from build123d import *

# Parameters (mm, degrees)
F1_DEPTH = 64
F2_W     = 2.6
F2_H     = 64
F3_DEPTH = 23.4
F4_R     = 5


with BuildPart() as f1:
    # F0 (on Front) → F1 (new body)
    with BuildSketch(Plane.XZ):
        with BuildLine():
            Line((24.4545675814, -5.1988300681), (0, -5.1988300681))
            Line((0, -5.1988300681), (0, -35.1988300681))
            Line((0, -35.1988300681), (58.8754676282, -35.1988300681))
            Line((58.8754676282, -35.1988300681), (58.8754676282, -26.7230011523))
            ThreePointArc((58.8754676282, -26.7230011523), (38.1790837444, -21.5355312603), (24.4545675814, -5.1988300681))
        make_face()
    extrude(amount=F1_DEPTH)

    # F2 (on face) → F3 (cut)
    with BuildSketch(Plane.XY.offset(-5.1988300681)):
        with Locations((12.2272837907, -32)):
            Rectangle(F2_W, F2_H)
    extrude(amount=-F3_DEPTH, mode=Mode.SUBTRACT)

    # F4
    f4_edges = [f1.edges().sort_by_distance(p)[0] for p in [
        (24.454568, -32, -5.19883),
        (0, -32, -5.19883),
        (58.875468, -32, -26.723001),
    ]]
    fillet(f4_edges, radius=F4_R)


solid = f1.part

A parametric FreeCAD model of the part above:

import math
import FreeCAD as App
import Part
import Sketcher

V = App.Vector


def edges_at(feature, points):
    """Names of the edges that pass closest to the given points."""
    edges = feature.Shape.Edges
    near = lambda p: min(range(len(edges)), key=lambda i: edges[i].distToShape(Part.Vertex(*p))[0])
    return sorted({f"Edge{near(p) + 1}" for p in points})

doc = App.newDocument("Part")
body = doc.addObject("PartDesign::Body", "Body")

sketch1 = body.newObject("Sketcher::SketchObject", "Sketch")
sketch1.AttachmentSupport = (doc.getObject("XZ_Plane"), [""])
sketch1.MapMode = "FlatFace"
sketch1.addGeometry(Part.LineSegment(V(24.454568, -5.19883, 0), V(0, -5.19883, 0)), False)
sketch1.addGeometry(Part.LineSegment(V(0, -5.19883, 0), V(0, -35.19883, 0)), False)
sketch1.addGeometry(Part.LineSegment(V(0, -35.19883, 0), V(58.875468, -35.19883, 0)), False)
sketch1.addGeometry(Part.LineSegment(V(58.875468, -35.19883, 0), V(58.875468, -26.723001, 0)), False)
sketch1.addGeometry(Part.ArcOfCircle(Part.Circle(V(56.534885, 7.818594, 0), V(0, 0, 1), 34.620805), math.radians(-157.913865), math.radians(-86.123491)), False)
sketch1.addConstraint(Sketcher.Constraint("Coincident", 0, 2, 1, 1))
sketch1.addConstraint(Sketcher.Constraint("Coincident", 1, 2, 2, 1))
sketch1.addConstraint(Sketcher.Constraint("Coincident", 2, 2, 3, 1))
sketch1.addConstraint(Sketcher.Constraint("Coincident", 3, 2, 4, 2))
sketch1.addConstraint(Sketcher.Constraint("Coincident", 4, 1, 0, 1))
sketch1.addConstraint(Sketcher.Constraint("Horizontal", 0))
sketch1.addConstraint(Sketcher.Constraint("Vertical", 1))
sketch1.addConstraint(Sketcher.Constraint("Horizontal", 2))
sketch1.addConstraint(Sketcher.Constraint("Vertical", 3))
sketch1.addConstraint(Sketcher.Constraint("PointOnObject", 0, 2, -2))
sketch1.addConstraint(Sketcher.Constraint("DistanceY", 1, 2, 1, 1, 30.0))
sketch1.addConstraint(Sketcher.Constraint("DistanceY", 3, 2, -1, 1, 26.723001))
sketch1.addConstraint(Sketcher.Constraint("Radius", 4, 34.620805))
sketch1.addConstraint(Sketcher.Constraint("DistanceY", 3, 1, 3, 2, 8.475829))
sketch1.addConstraint(Sketcher.Constraint("DistanceX", 4, 1, 3, 2, 34.4209))
sketch1.addConstraint(Sketcher.Constraint("DistanceX", 0, 2, 0, 1, 24.454568))
pad1 = body.newObject("PartDesign::Pad", "Pad")
pad1.Profile = sketch1
pad1.Length = 64

sketch2 = body.newObject("Sketcher::SketchObject", "Sketch001")
sketch2.AttachmentSupport = (doc.getObject("XY_Plane"), [""])
sketch2.MapMode = "FlatFace"
sketch2.AttachmentOffset = App.Placement(V(0, 0, -5.19883), App.Rotation())
sketch2.addGeometry(Part.LineSegment(V(10.927284, 0, 0), V(10.927284, -64, 0)), False)
sketch2.addGeometry(Part.LineSegment(V(10.927284, -64, 0), V(13.527284, -64, 0)), False)
sketch2.addGeometry(Part.LineSegment(V(13.527284, -64, 0), V(13.527284, 0, 0)), False)
sketch2.addGeometry(Part.LineSegment(V(13.527284, 0, 0), V(10.927284, 0, 0)), False)
sketch2.addConstraint(Sketcher.Constraint("Coincident", 0, 2, 1, 1))
sketch2.addConstraint(Sketcher.Constraint("Coincident", 1, 2, 2, 1))
sketch2.addConstraint(Sketcher.Constraint("Coincident", 2, 2, 3, 1))
sketch2.addConstraint(Sketcher.Constraint("Coincident", 3, 2, 0, 1))
sketch2.addConstraint(Sketcher.Constraint("Vertical", 0))
sketch2.addConstraint(Sketcher.Constraint("Horizontal", 1))
sketch2.addConstraint(Sketcher.Constraint("Vertical", 2))
sketch2.addConstraint(Sketcher.Constraint("Horizontal", 3))
sketch2.addConstraint(Sketcher.Constraint("PointOnObject", 2, 2, -1))
sketch2.addConstraint(Sketcher.Constraint("DistanceY", 0, 2, 0, 1, 64.0))
sketch2.addConstraint(Sketcher.Constraint("DistanceX", 1, 1, 1, 2, 2.6))
sketch2.addConstraint(Sketcher.Constraint("DistanceX", -1, 1, 0, 2, 10.927284))
pocket1 = body.newObject("PartDesign::Pocket", "Pocket")
pocket1.Profile = sketch2
pocket1.Length = 23.4
doc.recompute()

fillet = body.newObject("PartDesign::Fillet", "Fillet")
fillet.Base = (pocket1, edges_at(pocket1, [(24.455, -32, -5.199), (0, -32, -5.199), (58.875, -32, -26.723)]))
fillet.Radius = 5

doc.recompute()
